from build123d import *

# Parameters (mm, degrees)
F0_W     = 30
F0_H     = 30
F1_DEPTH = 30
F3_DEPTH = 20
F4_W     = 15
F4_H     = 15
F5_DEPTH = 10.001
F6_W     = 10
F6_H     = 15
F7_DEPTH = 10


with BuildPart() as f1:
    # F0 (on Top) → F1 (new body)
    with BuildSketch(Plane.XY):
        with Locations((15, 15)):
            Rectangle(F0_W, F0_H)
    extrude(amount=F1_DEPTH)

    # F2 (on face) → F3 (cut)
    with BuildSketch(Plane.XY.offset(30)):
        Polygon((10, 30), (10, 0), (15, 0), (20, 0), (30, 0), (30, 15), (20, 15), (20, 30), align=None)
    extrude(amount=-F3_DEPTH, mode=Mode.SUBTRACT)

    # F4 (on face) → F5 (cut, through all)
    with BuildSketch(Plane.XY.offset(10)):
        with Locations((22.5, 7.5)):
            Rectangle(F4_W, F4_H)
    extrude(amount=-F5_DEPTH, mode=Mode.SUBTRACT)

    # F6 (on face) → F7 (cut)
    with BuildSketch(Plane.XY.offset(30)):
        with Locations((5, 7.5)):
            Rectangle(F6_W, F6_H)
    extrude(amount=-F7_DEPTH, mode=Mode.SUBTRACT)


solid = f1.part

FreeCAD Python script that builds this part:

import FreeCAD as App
import Part
import Sketcher
Q = App.Units.Quantity

doc = App.newDocument("Part")
params = doc.addObject("Spreadsheet::Sheet", "Params")
for row, (alias, value) in enumerate([
    ("sketch1_width", "30 mm"),
    ("pad1_length", "30 mm"),
    ("sketch2_width", "20 mm"),
    ("sketch2_height", "30 mm"),
    ("pocket1_length", "20 mm"),
    ("sketch3_width", "15 mm"),
    ("sketch4_width", "10 mm"),
    ("sketch4_height", "15 mm"),
    ("pocket3_length", "10 mm"),
], start=1):
    params.set(f"A{row}", alias)
    params.set(f"B{row}", "=" + value)
    params.setAlias(f"B{row}", alias)

body = doc.addObject("PartDesign::Body", "Body")

# Sketch on XY plane
sketch1 = body.newObject("Sketcher::SketchObject", "Sketch")
sketch1.AttachmentSupport = (doc.getObject("XY_Plane"), [""])
sketch1.MapMode = "FlatFace"
sketch1.addGeometry(Part.LineSegment(App.Vector(0, 30, 0), App.Vector(0, 0, 0)), False)
sketch1.addGeometry(Part.LineSegment(App.Vector(0, 0, 0), App.Vector(30, 0, 0)), False)
sketch1.addGeometry(Part.LineSegment(App.Vector(30, 0, 0), App.Vector(30, 30, 0)), False)
sketch1.addGeometry(Part.LineSegment(App.Vector(30, 30, 0), App.Vector(0, 30, 0)), False)
sketch1.addConstraint(Sketcher.Constraint("Coincident", 0, 2, 1, 1))
sketch1.addConstraint(Sketcher.Constraint("Coincident", 1, 2, 2, 1))
sketch1.addConstraint(Sketcher.Constraint("Coincident", 2, 2, 3, 1))
sketch1.addConstraint(Sketcher.Constraint("Coincident", 3, 2, 0, 1))
sketch1.addConstraint(Sketcher.Constraint("Vertical", 0))
sketch1.addConstraint(Sketcher.Constraint("Horizontal", 1))
sketch1.addConstraint(Sketcher.Constraint("Vertical", 2))
sketch1.addConstraint(Sketcher.Constraint("Horizontal", 3))
sketch1.addConstraint(Sketcher.Constraint("Coincident", 0, 2, -1, 1))
sketch1.addConstraint(Sketcher.Constraint("Equal", 3, 0))
sketch1.addConstraint(Sketcher.Constraint("DistanceX", 1, 1, 1, 2, Q("30 mm")))
sketch1.setExpression("Constraints[10]", "Params.sketch1_width")
pad1 = body.newObject("PartDesign::Pad", "Pad")
pad1.Profile = sketch1
pad1.setExpression("Length", "Params.pad1_length")

# Sketch on XY plane
sketch2 = body.newObject("Sketcher::SketchObject", "Sketch001")
sketch2.AttachmentSupport = (doc.getObject("XY_Plane"), [""])
sketch2.MapMode = "FlatFace"
sketch2.AttachmentOffset = App.Placement(App.Vector(0, 0, 30), App.Rotation())
sketch2.addGeometry(Part.LineSegment(App.Vector(10, 30, 0), App.Vector(10, 0, 0)), False)
sketch2.addGeometry(Part.LineSegment(App.Vector(10, 0, 0), App.Vector(30, 0, 0)), False)
sketch2.addGeometry(Part.LineSegment(App.Vector(30, 0, 0), App.Vector(30, 15, 0)), False)
sketch2.addGeometry(Part.LineSegment(App.Vector(30, 15, 0), App.Vector(20, 15, 0)), False)
sketch2.addGeometry(Part.LineSegment(App.Vector(20, 15, 0), App.Vector(20, 30, 0)), False)
sketch2.addGeometry(Part.LineSegment(App.Vector(20, 30, 0), App.Vector(10, 30, 0)), False)
sketch2.addConstraint(Sketcher.Constraint("Coincident", 0, 2, 1, 1))
sketch2.addConstraint(Sketcher.Constraint("Coincident", 1, 2, 2, 1))
sketch2.addConstraint(Sketcher.Constraint("Coincident", 2, 2, 3, 1))
sketch2.addConstraint(Sketcher.Constraint("Coincident", 3, 2, 4, 1))
sketch2.addConstraint(Sketcher.Constraint("Coincident", 4, 2, 5, 1))
sketch2.addConstraint(Sketcher.Constraint("Coincident", 5, 2, 0, 1))
sketch2.addConstraint(Sketcher.Constraint("Vertical", 0))
sketch2.addConstraint(Sketcher.Constraint("Horizontal", 1))
sketch2.addConstraint(Sketcher.Constraint("Vertical", 2))
sketch2.addConstraint(Sketcher.Constraint("Horizontal", 3))
sketch2.addConstraint(Sketcher.Constraint("Vertical", 4))
sketch2.addConstraint(Sketcher.Constraint("Horizontal", 5))
sketch2.addConstraint(Sketcher.Constraint("PointOnObject", 0, 2, -1))
sketch2.addConstraint(Sketcher.Constraint("Equal", 3, 5))
sketch2.addConstraint(Sketcher.Constraint("Equal", 2, 4))
sketch2.addConstraint(Sketcher.Constraint("DistanceX", 1, 1, 1, 2, Q("20 mm")))
sketch2.addConstraint(Sketcher.Constraint("DistanceY", 0, 2, 0, 1, Q("30 mm")))
sketch2.addConstraint(Sketcher.Constraint("DistanceX", -1, 1, 0, 2, Q("10 mm")))
sketch2.setExpression("Constraints[15]", "Params.sketch2_width")
sketch2.setExpression("Constraints[16]", "Params.sketch2_height")
pocket1 = body.newObject("PartDesign::Pocket", "Pocket")
pocket1.Profile = sketch2
pocket1.setExpression("Length", "Params.pocket1_length")

# Sketch on XY plane
sketch3 = body.newObject("Sketcher::SketchObject", "Sketch002")
sketch3.AttachmentSupport = (doc.getObject("XY_Plane"), [""])
sketch3.MapMode = "FlatFace"
sketch3.AttachmentOffset = App.Placement(App.Vector(0, 0, 10), App.Rotation())
sketch3.addGeometry(Part.LineSegment(App.Vector(15, 15, 0), App.Vector(15, 0, 0)), False)
sketch3.addGeometry(Part.LineSegment(App.Vector(15, 0, 0), App.Vector(30, 0, 0)), False)
sketch3.addGeometry(Part.LineSegment(App.Vector(30, 0, 0), App.Vector(30, 15, 0)), False)
sketch3.addGeometry(Part.LineSegment(App.Vector(30, 15, 0), App.Vector(15, 15, 0)), False)
sketch3.addConstraint(Sketcher.Constraint("Coincident", 0, 2, 1, 1))
sketch3.addConstraint(Sketcher.Constraint("Coincident", 1, 2, 2, 1))
sketch3.addConstraint(Sketcher.Constraint("Coincident", 2, 2, 3, 1))
sketch3.addConstraint(Sketcher.Constraint("Coincident", 3, 2, 0, 1))
sketch3.addConstraint(Sketcher.Constraint("Vertical", 0))
sketch3.addConstraint(Sketcher.Constraint("Horizontal", 1))
sketch3.addConstraint(Sketcher.Constraint("Vertical", 2))
sketch3.addConstraint(Sketcher.Constraint("Horizontal", 3))
sketch3.addConstraint(Sketcher.Constraint("PointOnObject", 0, 2, -1))
sketch3.addConstraint(Sketcher.Constraint("Equal", 3, 0))
sketch3.addConstraint(Sketcher.Constraint("DistanceX", 1, 1, 1, 2, Q("15 mm")))
sketch3.addConstraint(Sketcher.Constraint("DistanceX", -1, 1, 0, 2, Q("15 mm")))
sketch3.setExpression("Constraints[10]", "Params.sketch3_width")
pocket2 = body.newObject("PartDesign::Pocket", "Pocket001")
pocket2.Profile = sketch3
pocket2.Type = "ThroughAll"

# Sketch on XY plane
sketch4 = body.newObject("Sketcher::SketchObject", "Sketch003")
sketch4.AttachmentSupport = (doc.getObject("XY_Plane"), [""])
sketch4.MapMode = "FlatFace"
sketch4.AttachmentOffset = App.Placement(App.Vector(0, 0, 30), App.Rotation())
sketch4.addGeometry(Part.LineSegment(App.Vector(0, 15, 0), App.Vector(0, 0, 0)), False)
sketch4.addGeometry(Part.LineSegment(App.Vector(0, 0, 0), App.Vector(10, 0, 0)), False)
sketch4.addGeometry(Part.LineSegment(App.Vector(10, 0, 0), App.Vector(10, 15, 0)), False)
sketch4.addGeometry(Part.LineSegment(App.Vector(10, 15, 0), App.Vector(0, 15, 0)), False)
sketch4.addConstraint(Sketcher.Constraint("Coincident", 0, 2, 1, 1))
sketch4.addConstraint(Sketcher.Constraint("Coincident", 1, 2, 2, 1))
sketch4.addConstraint(Sketcher.Constraint("Coincident", 2, 2, 3, 1))
sketch4.addConstraint(Sketcher.Constraint("Coincident", 3, 2, 0, 1))
sketch4.addConstraint(Sketcher.Constraint("Vertical", 0))
sketch4.addConstraint(Sketcher.Constraint("Horizontal", 1))
sketch4.addConstraint(Sketcher.Constraint("Vertical", 2))
sketch4.addConstraint(Sketcher.Constraint("Horizontal", 3))
sketch4.addConstraint(Sketcher.Constraint("Coincident", 0, 2, -1, 1))
sketch4.addConstraint(Sketcher.Constraint("DistanceX", 1, 1, 1, 2, Q("10 mm")))
sketch4.addConstraint(Sketcher.Constraint("DistanceY", 0, 2, 0, 1, Q("15 mm")))
sketch4.setExpression("Constraints[9]", "Params.sketch4_width")
sketch4.setExpression("Constraints[10]", "Params.sketch4_height")
pocket3 = body.newObject("PartDesign::Pocket", "Pocket002")
pocket3.Profile = sketch4
pocket3.setExpression("Length", "Params.pocket3_length")

doc.recompute()
